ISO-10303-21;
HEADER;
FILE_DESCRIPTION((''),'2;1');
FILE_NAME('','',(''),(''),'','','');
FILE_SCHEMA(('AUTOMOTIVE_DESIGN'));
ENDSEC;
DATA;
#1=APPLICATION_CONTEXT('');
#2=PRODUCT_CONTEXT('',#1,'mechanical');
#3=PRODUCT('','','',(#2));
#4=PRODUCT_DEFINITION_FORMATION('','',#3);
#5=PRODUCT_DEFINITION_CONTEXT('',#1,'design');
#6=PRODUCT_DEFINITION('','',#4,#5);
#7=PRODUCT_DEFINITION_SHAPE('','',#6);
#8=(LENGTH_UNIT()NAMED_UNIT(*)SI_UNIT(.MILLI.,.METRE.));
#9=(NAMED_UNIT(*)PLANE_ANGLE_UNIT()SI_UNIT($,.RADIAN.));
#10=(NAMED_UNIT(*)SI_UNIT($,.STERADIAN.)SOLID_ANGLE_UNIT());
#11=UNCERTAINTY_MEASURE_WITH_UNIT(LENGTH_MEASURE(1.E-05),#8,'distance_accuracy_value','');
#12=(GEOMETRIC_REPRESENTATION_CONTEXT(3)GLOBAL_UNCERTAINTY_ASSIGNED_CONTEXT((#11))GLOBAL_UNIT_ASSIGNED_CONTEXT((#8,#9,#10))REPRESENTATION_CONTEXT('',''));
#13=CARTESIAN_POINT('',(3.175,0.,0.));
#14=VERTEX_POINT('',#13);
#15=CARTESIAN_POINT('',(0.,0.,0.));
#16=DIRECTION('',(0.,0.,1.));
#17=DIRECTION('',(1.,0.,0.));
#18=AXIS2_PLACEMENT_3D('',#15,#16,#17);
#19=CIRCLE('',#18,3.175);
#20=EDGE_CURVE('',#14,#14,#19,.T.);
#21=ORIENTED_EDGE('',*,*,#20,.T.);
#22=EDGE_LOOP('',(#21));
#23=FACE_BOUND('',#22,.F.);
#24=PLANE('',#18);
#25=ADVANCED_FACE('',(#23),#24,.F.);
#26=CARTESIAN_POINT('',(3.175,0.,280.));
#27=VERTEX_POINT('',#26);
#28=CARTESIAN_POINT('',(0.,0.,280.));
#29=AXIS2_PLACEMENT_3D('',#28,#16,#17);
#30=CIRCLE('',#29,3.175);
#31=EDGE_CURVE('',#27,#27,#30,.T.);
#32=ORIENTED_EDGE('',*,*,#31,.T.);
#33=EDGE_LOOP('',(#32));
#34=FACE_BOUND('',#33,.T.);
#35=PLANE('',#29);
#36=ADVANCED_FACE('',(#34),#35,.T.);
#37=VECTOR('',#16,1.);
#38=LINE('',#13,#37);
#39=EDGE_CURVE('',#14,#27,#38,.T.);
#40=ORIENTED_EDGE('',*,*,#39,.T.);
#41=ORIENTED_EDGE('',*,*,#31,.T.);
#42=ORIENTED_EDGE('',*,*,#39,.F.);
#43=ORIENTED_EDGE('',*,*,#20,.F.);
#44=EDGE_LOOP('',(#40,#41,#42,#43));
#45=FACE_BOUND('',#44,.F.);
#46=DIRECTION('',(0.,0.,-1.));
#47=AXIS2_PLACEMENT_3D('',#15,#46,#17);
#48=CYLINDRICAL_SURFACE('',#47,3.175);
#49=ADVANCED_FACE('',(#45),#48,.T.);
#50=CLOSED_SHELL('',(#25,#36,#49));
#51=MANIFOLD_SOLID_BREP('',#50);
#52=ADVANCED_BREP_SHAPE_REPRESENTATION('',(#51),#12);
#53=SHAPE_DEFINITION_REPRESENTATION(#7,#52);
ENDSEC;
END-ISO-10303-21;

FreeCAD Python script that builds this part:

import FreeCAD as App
import Part
import Sketcher

V = App.Vector

doc = App.newDocument("Part")
body = doc.addObject("PartDesign::Body", "Body")

sketch1 = body.newObject("Sketcher::SketchObject", "Sketch")
sketch1.AttachmentSupport = (doc.getObject("XY_Plane"), [""])
sketch1.MapMode = "FlatFace"
sketch1.addGeometry(Part.Circle(V(0, 0, 0), V(0, 0, 1), 3.2), False)
sketch1.addConstraint([
    Sketcher.Constraint("Coincident", 0, 3, -1, 1),
    Sketcher.Constraint("Diameter", 0, 6.35),
])
pad1 = body.newObject("PartDesign::Pad", "Pad")
pad1.Profile = sketch1
pad1.Length = 280

doc.recompute()
